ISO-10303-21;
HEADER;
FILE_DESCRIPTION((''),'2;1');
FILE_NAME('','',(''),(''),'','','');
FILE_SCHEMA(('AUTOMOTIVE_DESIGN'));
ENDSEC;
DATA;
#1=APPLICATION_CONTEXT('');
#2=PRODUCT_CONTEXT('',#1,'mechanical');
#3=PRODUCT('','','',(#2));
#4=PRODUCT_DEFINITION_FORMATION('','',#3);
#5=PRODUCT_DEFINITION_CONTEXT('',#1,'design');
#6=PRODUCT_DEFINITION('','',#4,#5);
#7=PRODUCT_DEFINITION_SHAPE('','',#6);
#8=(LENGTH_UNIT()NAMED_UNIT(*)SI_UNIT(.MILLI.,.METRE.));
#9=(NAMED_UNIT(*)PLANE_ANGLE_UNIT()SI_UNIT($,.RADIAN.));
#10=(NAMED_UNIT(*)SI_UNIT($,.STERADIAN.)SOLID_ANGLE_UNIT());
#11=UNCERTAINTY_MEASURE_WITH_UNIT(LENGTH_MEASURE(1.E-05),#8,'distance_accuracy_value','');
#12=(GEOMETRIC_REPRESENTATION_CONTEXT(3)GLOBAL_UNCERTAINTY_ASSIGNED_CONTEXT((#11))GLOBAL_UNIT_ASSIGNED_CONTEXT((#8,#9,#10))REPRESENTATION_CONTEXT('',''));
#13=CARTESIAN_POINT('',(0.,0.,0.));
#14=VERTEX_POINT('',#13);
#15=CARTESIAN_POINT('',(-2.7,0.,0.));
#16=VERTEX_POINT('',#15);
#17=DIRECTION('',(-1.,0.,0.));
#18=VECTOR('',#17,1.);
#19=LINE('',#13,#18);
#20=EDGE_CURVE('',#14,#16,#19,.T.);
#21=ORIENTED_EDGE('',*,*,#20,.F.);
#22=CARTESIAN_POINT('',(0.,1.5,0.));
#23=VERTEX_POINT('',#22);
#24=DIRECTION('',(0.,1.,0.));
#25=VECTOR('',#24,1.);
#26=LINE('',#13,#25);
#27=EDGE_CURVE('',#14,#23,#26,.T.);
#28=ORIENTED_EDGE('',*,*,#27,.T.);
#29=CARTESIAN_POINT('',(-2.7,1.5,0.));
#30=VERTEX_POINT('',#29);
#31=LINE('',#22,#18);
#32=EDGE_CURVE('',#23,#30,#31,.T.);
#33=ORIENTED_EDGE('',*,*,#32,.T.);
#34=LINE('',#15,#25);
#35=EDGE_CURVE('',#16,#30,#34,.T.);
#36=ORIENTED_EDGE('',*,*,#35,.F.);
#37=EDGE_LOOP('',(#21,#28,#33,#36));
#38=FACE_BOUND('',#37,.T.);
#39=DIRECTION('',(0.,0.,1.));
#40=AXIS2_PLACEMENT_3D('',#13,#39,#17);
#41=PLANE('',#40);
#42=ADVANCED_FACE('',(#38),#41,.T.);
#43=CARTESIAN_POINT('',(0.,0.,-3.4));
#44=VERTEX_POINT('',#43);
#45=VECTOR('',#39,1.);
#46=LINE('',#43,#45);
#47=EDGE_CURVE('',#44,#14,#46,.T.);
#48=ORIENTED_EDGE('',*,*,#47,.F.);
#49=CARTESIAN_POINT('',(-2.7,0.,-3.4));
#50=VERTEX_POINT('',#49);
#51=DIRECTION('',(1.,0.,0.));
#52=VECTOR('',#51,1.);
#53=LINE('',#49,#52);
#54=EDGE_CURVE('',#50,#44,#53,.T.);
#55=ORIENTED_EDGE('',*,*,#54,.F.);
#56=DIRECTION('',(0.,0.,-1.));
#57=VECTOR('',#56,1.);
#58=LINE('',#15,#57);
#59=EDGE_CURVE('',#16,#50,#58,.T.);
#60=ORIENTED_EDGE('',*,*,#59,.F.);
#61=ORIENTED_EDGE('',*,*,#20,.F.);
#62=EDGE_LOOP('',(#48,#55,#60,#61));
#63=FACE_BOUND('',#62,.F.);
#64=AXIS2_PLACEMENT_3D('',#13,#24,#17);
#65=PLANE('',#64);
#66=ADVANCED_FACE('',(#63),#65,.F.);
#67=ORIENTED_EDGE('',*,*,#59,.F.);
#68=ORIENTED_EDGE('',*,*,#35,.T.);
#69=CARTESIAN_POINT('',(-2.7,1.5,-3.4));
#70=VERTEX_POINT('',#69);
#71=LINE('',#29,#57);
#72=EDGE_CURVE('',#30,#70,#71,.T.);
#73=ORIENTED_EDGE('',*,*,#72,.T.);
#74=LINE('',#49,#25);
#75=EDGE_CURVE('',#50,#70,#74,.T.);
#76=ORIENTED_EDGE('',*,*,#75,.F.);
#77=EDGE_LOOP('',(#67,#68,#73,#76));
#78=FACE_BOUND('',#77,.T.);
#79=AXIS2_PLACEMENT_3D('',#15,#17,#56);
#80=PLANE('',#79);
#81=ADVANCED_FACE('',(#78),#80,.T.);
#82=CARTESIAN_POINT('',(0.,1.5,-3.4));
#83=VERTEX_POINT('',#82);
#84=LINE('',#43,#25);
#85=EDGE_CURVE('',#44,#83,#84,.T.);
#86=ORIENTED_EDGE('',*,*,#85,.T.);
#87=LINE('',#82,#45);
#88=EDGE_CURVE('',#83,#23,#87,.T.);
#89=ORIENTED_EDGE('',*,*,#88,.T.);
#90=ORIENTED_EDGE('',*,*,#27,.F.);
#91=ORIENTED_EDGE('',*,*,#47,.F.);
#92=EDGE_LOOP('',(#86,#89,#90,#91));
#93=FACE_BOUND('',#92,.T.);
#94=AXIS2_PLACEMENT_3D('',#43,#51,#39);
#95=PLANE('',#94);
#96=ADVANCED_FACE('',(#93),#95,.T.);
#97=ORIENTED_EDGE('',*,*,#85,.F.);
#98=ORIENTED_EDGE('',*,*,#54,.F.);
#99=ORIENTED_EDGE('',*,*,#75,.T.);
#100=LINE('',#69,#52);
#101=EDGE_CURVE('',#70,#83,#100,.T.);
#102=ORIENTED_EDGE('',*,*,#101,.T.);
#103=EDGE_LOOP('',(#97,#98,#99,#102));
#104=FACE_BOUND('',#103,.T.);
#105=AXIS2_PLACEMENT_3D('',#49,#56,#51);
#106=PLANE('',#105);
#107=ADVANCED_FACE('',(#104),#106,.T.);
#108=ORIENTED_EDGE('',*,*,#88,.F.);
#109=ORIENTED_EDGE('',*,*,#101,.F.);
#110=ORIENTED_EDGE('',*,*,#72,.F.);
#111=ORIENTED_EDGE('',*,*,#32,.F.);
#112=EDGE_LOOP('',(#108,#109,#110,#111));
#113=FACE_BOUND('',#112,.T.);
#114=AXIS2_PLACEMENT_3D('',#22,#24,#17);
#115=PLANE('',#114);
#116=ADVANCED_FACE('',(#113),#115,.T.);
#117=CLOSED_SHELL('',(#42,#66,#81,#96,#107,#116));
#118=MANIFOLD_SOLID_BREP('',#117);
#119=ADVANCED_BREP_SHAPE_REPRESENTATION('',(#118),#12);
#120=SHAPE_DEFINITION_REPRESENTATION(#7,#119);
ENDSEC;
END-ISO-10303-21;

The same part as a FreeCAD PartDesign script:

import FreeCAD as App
import Part
import Sketcher
from FreeCAD import Vector

doc = App.newDocument("Part")
params = doc.addObject("Spreadsheet::Sheet", "Params")
for row, (alias, value) in enumerate([
    ("sketch1_width", "2.7 mm"),
    ("sketch1_height", "3.4 mm"),
    ("pad1_length", "1.5 mm"),
], start=1):
    params.set(f"A{row}", alias)
    params.set(f"B{row}", "=" + value)
    params.setAlias(f"B{row}", alias)

body = doc.addObject("PartDesign::Body", "Body")

# Sketch on XZ plane
sketch1 = body.newObject("Sketcher::SketchObject", "Sketch")
sketch1.AttachmentSupport = (doc.getObject("XZ_Plane"), [""])
sketch1.MapMode = "FlatFace"
sketch1.addGeometry(Part.LineSegment(Vector(-2.7, 0, 0), Vector(0, 0, 0)), False)
sketch1.addGeometry(Part.LineSegment(Vector(0, 0, 0), Vector(0, -3.4, 0)), False)
sketch1.addGeometry(Part.LineSegment(Vector(0, -3.4, 0), Vector(-2.7, -3.4, 0)), False)
sketch1.addGeometry(Part.LineSegment(Vector(-2.7, -3.4, 0), Vector(-2.7, 0, 0)), False)
sketch1.addConstraint(Sketcher.Constraint("Coincident", 0, 2, 1, 1))
sketch1.addConstraint(Sketcher.Constraint("Coincident", 1, 2, 2, 1))
sketch1.addConstraint(Sketcher.Constraint("Coincident", 2, 2, 3, 1))
sketch1.addConstraint(Sketcher.Constraint("Coincident", 3, 2, 0, 1))
sketch1.addConstraint(Sketcher.Constraint("Horizontal", 0))
sketch1.addConstraint(Sketcher.Constraint("Vertical", 1))
sketch1.addConstraint(Sketcher.Constraint("Horizontal", 2))
sketch1.addConstraint(Sketcher.Constraint("Vertical", 3))
sketch1.addConstraint(Sketcher.Constraint("Coincident", 0, 2, -1, 1))
sketch1.addConstraint(Sketcher.Constraint("DistanceX", 0, 1, 0, 2, 2.7))
sketch1.addConstraint(Sketcher.Constraint("DistanceY", 1, 2, 1, 1, 3.4))
sketch1.setExpression("Constraints[9]", "Params.sketch1_width")
sketch1.setExpression("Constraints[10]", "Params.sketch1_height")
pad1 = body.newObject("PartDesign::Pad", "Pad")
pad1.Profile = sketch1
pad1.setExpression("Length", "Params.pad1_length")
pad1.Reversed = True

doc.recompute()
